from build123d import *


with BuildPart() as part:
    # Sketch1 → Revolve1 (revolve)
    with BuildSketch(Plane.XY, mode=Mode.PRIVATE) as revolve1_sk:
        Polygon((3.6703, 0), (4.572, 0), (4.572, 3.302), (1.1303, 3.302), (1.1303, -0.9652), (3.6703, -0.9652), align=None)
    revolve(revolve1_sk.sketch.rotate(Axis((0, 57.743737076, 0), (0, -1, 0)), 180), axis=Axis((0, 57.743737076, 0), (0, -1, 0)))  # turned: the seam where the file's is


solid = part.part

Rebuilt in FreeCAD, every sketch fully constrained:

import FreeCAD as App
import Part
import Sketcher

V = App.Vector
Q = App.Units.Quantity

doc = App.newDocument("Part")
body = doc.addObject("PartDesign::Body", "Body")

# Sketch on XY plane
sketch1 = body.newObject("Sketcher::SketchObject", "Sketch")
sketch1.AttachmentSupport = (doc.getObject("XY_Plane"), [""])
sketch1.MapMode = "FlatFace"
sketch1.addGeometry([
    Part.LineSegment(V(3.7, 0, 0), V(4.6, 0, 0)),  # 0
    Part.LineSegment(V(4.6, 0, 0), V(4.6, 3.3, 0)),  # 1
    Part.LineSegment(V(4.6, 3.3, 0), V(1.1, 3.3, 0)),  # 2
    Part.LineSegment(V(1.1, 3.3, 0), V(1.1, -1, 0)),  # 3
    Part.LineSegment(V(1.1, -1, 0), V(3.7, -1, 0)),  # 4
    Part.LineSegment(V(3.7, -1, 0), V(3.7, 0, 0)),  # 5
], False)
sketch1.addConstraint([
    Sketcher.Constraint("Coincident", 0, 2, 1, 1),
    Sketcher.Constraint("Coincident", 1, 2, 2, 1),
    Sketcher.Constraint("Coincident", 2, 2, 3, 1),
    Sketcher.Constraint("Coincident", 3, 2, 4, 1),
    Sketcher.Constraint("Coincident", 4, 2, 5, 1),
    Sketcher.Constraint("Coincident", 5, 2, 0, 1),
    Sketcher.Constraint("Horizontal", 0),
    Sketcher.Constraint("Vertical", 1),
    Sketcher.Constraint("Horizontal", 2),
    Sketcher.Constraint("Vertical", 3),
    Sketcher.Constraint("Horizontal", 4),
    Sketcher.Constraint("Vertical", 5),
    Sketcher.Constraint("PointOnObject", 0, 2, -1),
    Sketcher.Constraint("DistanceX", 4, 1, 4, 2, Q("0.1 in")),
    Sketcher.Constraint("DistanceY", 1, 1, 1, 2, Q("0.13 in")),
    Sketcher.Constraint("DistanceY", 3, 2, 3, 1, Q("0.168 in")),
    Sketcher.Constraint("DistanceX", -1, 1, 0, 2, Q("0.18 in")),
    Sketcher.Constraint("DistanceX", 0, 1, 0, 2, Q("0.0355 in")),
])
revolution = body.newObject("PartDesign::Revolution", "Revolution")
revolution.Profile = sketch1
revolution.ReferenceAxis = (sketch1, ["V_Axis"])
revolution.Angle = 360

doc.recompute()
